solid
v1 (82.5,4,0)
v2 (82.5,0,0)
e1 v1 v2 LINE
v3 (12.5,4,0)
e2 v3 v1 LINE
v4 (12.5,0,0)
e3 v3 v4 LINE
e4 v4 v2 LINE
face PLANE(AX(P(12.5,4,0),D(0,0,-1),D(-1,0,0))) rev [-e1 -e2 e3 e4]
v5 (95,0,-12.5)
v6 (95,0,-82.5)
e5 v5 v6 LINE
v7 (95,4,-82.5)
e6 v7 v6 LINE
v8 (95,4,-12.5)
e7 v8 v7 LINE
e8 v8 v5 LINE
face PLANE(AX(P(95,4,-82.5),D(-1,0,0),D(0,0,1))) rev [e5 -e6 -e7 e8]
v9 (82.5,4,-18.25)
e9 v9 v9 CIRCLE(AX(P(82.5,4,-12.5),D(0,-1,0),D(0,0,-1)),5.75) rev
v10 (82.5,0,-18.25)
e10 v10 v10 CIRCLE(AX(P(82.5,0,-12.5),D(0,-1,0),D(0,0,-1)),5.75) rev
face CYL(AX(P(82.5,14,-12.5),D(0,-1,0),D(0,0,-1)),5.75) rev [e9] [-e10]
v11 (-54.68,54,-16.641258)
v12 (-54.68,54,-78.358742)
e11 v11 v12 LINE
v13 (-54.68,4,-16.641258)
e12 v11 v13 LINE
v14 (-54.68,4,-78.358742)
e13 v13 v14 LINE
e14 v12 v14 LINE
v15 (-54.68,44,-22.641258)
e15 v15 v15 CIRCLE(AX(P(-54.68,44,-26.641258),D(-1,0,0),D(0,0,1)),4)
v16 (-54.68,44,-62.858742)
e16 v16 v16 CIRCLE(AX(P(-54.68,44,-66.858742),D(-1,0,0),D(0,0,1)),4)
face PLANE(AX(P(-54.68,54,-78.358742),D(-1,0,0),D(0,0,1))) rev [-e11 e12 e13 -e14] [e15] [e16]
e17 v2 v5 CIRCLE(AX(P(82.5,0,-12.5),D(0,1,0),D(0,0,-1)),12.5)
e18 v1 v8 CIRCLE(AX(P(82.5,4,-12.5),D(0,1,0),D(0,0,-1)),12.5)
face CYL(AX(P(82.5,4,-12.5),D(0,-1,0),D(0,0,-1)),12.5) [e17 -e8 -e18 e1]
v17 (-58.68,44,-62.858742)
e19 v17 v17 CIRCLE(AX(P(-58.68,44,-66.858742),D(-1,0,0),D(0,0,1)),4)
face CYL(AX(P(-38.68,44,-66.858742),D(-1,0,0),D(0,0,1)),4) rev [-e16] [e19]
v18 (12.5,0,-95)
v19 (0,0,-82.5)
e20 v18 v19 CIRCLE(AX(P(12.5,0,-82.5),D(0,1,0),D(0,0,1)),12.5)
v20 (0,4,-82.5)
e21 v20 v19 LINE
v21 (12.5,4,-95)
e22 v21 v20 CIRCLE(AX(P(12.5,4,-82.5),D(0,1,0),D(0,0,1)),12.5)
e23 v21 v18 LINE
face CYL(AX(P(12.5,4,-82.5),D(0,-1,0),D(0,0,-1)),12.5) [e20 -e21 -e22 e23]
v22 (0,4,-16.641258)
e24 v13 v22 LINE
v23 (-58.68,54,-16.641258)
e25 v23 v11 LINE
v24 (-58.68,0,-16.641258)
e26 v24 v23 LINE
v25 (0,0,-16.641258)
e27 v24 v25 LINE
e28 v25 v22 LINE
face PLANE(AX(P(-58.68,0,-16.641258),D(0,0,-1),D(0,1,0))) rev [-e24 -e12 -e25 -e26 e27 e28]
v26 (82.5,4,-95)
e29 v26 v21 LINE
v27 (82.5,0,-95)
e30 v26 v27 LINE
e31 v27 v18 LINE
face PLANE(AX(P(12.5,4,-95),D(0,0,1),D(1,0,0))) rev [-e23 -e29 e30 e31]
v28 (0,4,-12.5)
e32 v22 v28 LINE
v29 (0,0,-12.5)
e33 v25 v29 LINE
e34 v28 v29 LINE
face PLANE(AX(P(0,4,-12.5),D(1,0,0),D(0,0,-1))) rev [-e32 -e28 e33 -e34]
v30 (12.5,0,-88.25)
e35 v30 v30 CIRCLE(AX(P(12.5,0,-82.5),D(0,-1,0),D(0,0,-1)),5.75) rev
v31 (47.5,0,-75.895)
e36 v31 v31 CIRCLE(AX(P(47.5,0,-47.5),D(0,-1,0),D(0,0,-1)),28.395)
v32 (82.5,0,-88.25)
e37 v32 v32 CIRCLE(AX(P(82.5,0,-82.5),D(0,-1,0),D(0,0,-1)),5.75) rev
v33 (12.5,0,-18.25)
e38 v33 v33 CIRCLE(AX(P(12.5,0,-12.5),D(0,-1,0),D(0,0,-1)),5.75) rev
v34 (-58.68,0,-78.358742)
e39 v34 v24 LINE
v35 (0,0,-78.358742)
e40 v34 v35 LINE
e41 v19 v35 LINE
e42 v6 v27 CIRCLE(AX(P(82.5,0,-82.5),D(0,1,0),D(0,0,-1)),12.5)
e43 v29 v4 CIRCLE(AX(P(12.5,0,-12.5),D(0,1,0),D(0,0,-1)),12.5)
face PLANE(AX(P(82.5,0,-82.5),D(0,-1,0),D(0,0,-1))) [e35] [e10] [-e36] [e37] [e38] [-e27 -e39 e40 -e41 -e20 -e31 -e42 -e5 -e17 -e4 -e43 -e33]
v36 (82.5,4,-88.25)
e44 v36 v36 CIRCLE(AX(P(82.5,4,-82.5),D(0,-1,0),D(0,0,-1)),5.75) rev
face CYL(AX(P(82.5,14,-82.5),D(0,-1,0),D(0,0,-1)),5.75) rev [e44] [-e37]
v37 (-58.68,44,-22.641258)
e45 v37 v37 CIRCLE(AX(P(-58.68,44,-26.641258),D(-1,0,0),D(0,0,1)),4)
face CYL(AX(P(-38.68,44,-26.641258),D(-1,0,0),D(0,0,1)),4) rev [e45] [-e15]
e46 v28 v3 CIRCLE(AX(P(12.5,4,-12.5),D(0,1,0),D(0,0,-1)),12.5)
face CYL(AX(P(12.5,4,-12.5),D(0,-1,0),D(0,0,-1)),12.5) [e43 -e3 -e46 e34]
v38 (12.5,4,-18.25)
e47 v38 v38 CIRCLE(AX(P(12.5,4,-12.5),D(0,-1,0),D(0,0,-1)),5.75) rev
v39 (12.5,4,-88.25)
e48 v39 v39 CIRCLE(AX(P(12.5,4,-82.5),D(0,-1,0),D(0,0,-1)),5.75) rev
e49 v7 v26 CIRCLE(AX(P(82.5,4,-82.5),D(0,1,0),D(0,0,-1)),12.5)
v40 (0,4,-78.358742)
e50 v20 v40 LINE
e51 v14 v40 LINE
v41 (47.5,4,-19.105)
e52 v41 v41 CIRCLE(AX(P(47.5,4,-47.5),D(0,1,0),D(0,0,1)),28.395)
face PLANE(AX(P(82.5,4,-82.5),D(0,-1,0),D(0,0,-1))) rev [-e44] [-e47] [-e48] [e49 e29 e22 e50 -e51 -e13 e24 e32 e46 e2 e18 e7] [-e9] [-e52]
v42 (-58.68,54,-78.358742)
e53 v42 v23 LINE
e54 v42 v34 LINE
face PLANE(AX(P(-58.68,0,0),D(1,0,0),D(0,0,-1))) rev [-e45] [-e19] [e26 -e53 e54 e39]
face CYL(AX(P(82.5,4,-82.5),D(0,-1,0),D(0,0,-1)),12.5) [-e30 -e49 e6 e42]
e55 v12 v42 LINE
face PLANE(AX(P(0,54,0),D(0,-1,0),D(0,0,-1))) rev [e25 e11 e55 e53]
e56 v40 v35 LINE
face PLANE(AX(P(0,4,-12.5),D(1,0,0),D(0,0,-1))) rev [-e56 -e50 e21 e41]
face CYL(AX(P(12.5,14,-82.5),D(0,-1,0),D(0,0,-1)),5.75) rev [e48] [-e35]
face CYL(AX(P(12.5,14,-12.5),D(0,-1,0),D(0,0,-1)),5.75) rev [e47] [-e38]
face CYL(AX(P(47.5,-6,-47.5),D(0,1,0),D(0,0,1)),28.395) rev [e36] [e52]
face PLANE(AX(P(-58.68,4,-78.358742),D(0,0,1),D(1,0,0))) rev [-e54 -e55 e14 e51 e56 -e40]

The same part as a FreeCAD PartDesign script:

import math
import FreeCAD as App
import Part
import Sketcher

V = App.Vector


def add_polygon(sketch, points):
    """Adds a closed chain of lines whose ends are joined by coincident constraints."""
    first, n = sketch.GeometryCount, len(points)
    for a, b in zip(points, points[1:] + points[:1]):
        sketch.addGeometry(Part.LineSegment(App.Vector(*a, 0), App.Vector(*b, 0)), False)
    for i in range(n):
        sketch.addConstraint(Sketcher.Constraint("Coincident", first + i, 2, first + (i + 1) % n, 1))

doc = App.newDocument("Part")
params = doc.addObject("Spreadsheet::Sheet", "Params")
for row, (alias, value) in enumerate([
    ("sketch1_radius", "12.5 mm"),
    ("sketch1_width", "70 mm"),
    ("pad1_length", "4 mm"),
    ("sketch2_diameter", "11.5 mm"),
    ("sketch3_width", "4 mm"),
    ("pad2_length", "58.68 mm"),
    ("sketch4_width", "4 mm"),
    ("pad3_length", "50 mm"),
    ("sketch5_diameter", "8 mm"),
    ("pocket2_length", "20 mm"),
    ("sketch6_diameter", "56.79 mm"),
    ("pocket3_length", "10 mm"),
], start=1):
    params.set(f"A{row}", alias)
    params.set(f"B{row}", "=" + value)
    params.setAlias(f"B{row}", alias)

body = doc.addObject("PartDesign::Body", "Body")

# Sketch on XZ plane
sketch1 = body.newObject("Sketcher::SketchObject", "Sketch")
sketch1.AttachmentSupport = (doc.getObject("XZ_Plane"), [""])
sketch1.MapMode = "FlatFace"
sketch1.addGeometry(Part.LineSegment(V(12, 0, 0), V(82, 0, 0)), False)
sketch1.addGeometry(Part.ArcOfCircle(Part.Circle(V(83, -12, 0), V(0, 0, 1), 12), math.radians(0), math.radians(90)), False)
sketch1.addGeometry(Part.LineSegment(V(95, -12, 0), V(95, -82, 0)), False)
sketch1.addGeometry(Part.ArcOfCircle(Part.Circle(V(83, -83, 0), V(0, 0, 1), 12), math.radians(-90), math.radians(0)), False)
sketch1.addGeometry(Part.LineSegment(V(82, -95, 0), V(12, -95, 0)), False)
sketch1.addGeometry(Part.ArcOfCircle(Part.Circle(V(12, -83, 0), V(0, 0, 1), 12), math.radians(180), math.radians(270)), False)
sketch1.addGeometry(Part.LineSegment(V(0, -82, 0), V(0, -12, 0)), False)
sketch1.addGeometry(Part.ArcOfCircle(Part.Circle(V(12, -12, 0), V(0, 0, 1), 12), math.radians(90), math.radians(180)), False)
sketch1.addConstraint(Sketcher.Constraint("Tangent", 0, 2, 1, 2))
sketch1.addConstraint(Sketcher.Constraint("Tangent", 1, 1, 2, 1))
sketch1.addConstraint(Sketcher.Constraint("Tangent", 2, 2, 3, 2))
sketch1.addConstraint(Sketcher.Constraint("Tangent", 3, 1, 4, 1))
sketch1.addConstraint(Sketcher.Constraint("Tangent", 4, 2, 5, 2))
sketch1.addConstraint(Sketcher.Constraint("Tangent", 5, 1, 6, 1))
sketch1.addConstraint(Sketcher.Constraint("Tangent", 6, 2, 7, 2))
sketch1.addConstraint(Sketcher.Constraint("Tangent", 7, 1, 0, 1))
sketch1.addConstraint(Sketcher.Constraint("Horizontal", 0))
sketch1.addConstraint(Sketcher.Constraint("Vertical", 2))
sketch1.addConstraint(Sketcher.Constraint("Horizontal", 4))
sketch1.addConstraint(Sketcher.Constraint("Vertical", 6))
sketch1.addConstraint(Sketcher.Constraint("Equal", 1, 3))
sketch1.addConstraint(Sketcher.Constraint("Equal", 3, 5))
sketch1.addConstraint(Sketcher.Constraint("Equal", 5, 7))
sketch1.addConstraint(Sketcher.Constraint("PointOnObject", 0, 2, -1))
sketch1.addConstraint(Sketcher.Constraint("PointOnObject", 5, 1, -2))
sketch1.addConstraint(Sketcher.Constraint("Equal", 4, 2))
sketch1.addConstraint(Sketcher.Constraint("Radius", 1, 12.5))
sketch1.addConstraint(Sketcher.Constraint("DistanceX", 0, 1, 0, 2, 70.0))
sketch1.setExpression("Constraints[18]", "Params.sketch1_radius")
sketch1.setExpression("Constraints[19]", "Params.sketch1_width")
pad1 = body.newObject("PartDesign::Pad", "Pad")
pad1.Profile = sketch1
pad1.setExpression("Length", "Params.pad1_length")
pad1.Reversed = True

# Sketch on XZ plane
sketch2 = body.newObject("Sketcher::SketchObject", "Sketch001")
sketch2.AttachmentSupport = (doc.getObject("XZ_Plane"), [""])
sketch2.MapMode = "FlatFace"
sketch2.AttachmentOffset = App.Placement(V(0, 0, -4), App.Rotation())
sketch2.addGeometry(Part.Circle(V(12, -82, 0), V(0, 0, 1), 6), False)
sketch2.addGeometry(Part.Circle(V(82, -82, 0), V(0, 0, 1), 6), False)
sketch2.addGeometry(Part.Circle(V(12, -12, 0), V(0, 0, 1), 6), False)
sketch2.addGeometry(Part.Circle(V(82, -12, 0), V(0, 0, 1), 6), False)
sketch2.addConstraint(Sketcher.Constraint("Equal", 0, 1))
sketch2.addConstraint(Sketcher.Constraint("Equal", 1, 2))
sketch2.addConstraint(Sketcher.Constraint("Equal", 2, 3))
sketch2.addConstraint(Sketcher.Constraint("Horizontal", 0, 3, 1, 3))
sketch2.addConstraint(Sketcher.Constraint("Horizontal", 2, 3, 3, 3))
sketch2.addConstraint(Sketcher.Constraint("Vertical", 0, 3, 2, 3))
sketch2.addConstraint(Sketcher.Constraint("Vertical", 1, 3, 3, 3))
sketch2.addConstraint(Sketcher.Constraint("Diameter", 0, 11.5))
sketch2.addConstraint(Sketcher.Constraint("DistanceX", 0, 3, 1, 3, 70.0))
sketch2.addConstraint(Sketcher.Constraint("DistanceY", 0, 3, 2, 3, 70.0))
sketch2.addConstraint(Sketcher.Constraint("DistanceX", -1, 1, 0, 3, 12.5))
sketch2.addConstraint(Sketcher.Constraint("DistanceY", 0, 3, -1, 1, 82.5))
sketch2.setExpression("Constraints[7]", "Params.sketch2_diameter")
pocket1 = body.newObject("PartDesign::Pocket", "Pocket")
pocket1.Profile = sketch2
pocket1.Type = "ThroughAll"
pocket1.Midplane = True

# Sketch on YZ plane
sketch3 = body.newObject("Sketcher::SketchObject", "Sketch002")
sketch3.AttachmentSupport = (doc.getObject("YZ_Plane"), [""])
sketch3.MapMode = "FlatFace"
add_polygon(sketch3, [(4, -16.6), (4, -78.4), (0, -78.4), (0, -16.6)])  # lines 0-3
sketch3.addConstraint(Sketcher.Constraint("Vertical", 0))
sketch3.addConstraint(Sketcher.Constraint("Horizontal", 1))
sketch3.addConstraint(Sketcher.Constraint("Vertical", 2))
sketch3.addConstraint(Sketcher.Constraint("Horizontal", 3))
sketch3.addConstraint(Sketcher.Constraint("PointOnObject", 1, 2, -2))
sketch3.addConstraint(Sketcher.Constraint("DistanceX", 1, 2, 1, 1, 4.0))
sketch3.addConstraint(Sketcher.Constraint("DistanceY", 0, 2, 0, 1, 61.717483))
sketch3.addConstraint(Sketcher.Constraint("DistanceY", 0, 2, -1, 1, 78.358742))
sketch3.setExpression("Constraints[9]", "Params.sketch3_width")
pad2 = body.newObject("PartDesign::Pad", "Pad001")
pad2.Profile = sketch3
pad2.setExpression("Length", "Params.pad2_length")
pad2.Reversed = True

# Sketch on XZ plane
sketch4 = body.newObject("Sketcher::SketchObject", "Sketch003")
sketch4.AttachmentSupport = (doc.getObject("XZ_Plane"), [""])
sketch4.MapMode = "FlatFace"
sketch4.AttachmentOffset = App.Placement(V(0, 0, -4), App.Rotation())
add_polygon(sketch4, [(-58.7, -78.4), (-58.7, -16.6), (-54.7, -16.6), (-54.7, -78.4)])  # lines 0-3
sketch4.addConstraint(Sketcher.Constraint("Vertical", 0))
sketch4.addConstraint(Sketcher.Constraint("Horizontal", 1))
sketch4.addConstraint(Sketcher.Constraint("Vertical", 2))
sketch4.addConstraint(Sketcher.Constraint("Horizontal", 3))
sketch4.addConstraint(Sketcher.Constraint("DistanceX", 1, 1, 1, 2, 4.0))
sketch4.addConstraint(Sketcher.Constraint("DistanceX", 0, 2, -1, 1, 58.68))
sketch4.addConstraint(Sketcher.Constraint("DistanceY", 0, 1, 0, 2, 61.717483))
sketch4.addConstraint(Sketcher.Constraint("DistanceY", 0, 2, -1, 1, 16.641258))
sketch4.setExpression("Constraints[8]", "Params.sketch4_width")
pad3 = body.newObject("PartDesign::Pad", "Pad002")
pad3.Profile = sketch4
pad3.setExpression("Length", "Params.pad3_length")
pad3.Reversed = True

# Sketch on YZ plane
sketch5 = body.newObject("Sketcher::SketchObject", "Sketch004")
sketch5.AttachmentSupport = (doc.getObject("YZ_Plane"), [""])
sketch5.MapMode = "FlatFace"
sketch5.AttachmentOffset = App.Placement(V(0, 0, -58.68), App.Rotation())
sketch5.addGeometry(Part.Circle(V(44, -66.9, 0), V(0, 0, 1), 4), False)
sketch5.addGeometry(Part.Circle(V(44, -26.6, 0), V(0, 0, 1), 4), False)
sketch5.addConstraint(Sketcher.Constraint("Equal", 0, 1))
sketch5.addConstraint(Sketcher.Constraint("Vertical", 0, 3, 1, 3))
sketch5.addConstraint(Sketcher.Constraint("Diameter", 0, 8.0))
sketch5.addConstraint(Sketcher.Constraint("DistanceX", -1, 1, 0, 3, 44.0))
sketch5.addConstraint(Sketcher.Constraint("DistanceY", 0, 3, -1, 1, 66.858742))
sketch5.addConstraint(Sketcher.Constraint("DistanceY", 1, 3, -1, 1, 26.641258))
sketch5.setExpression("Constraints[2]", "Params.sketch5_diameter")
pocket2 = body.newObject("PartDesign::Pocket", "Pocket001")
pocket2.Profile = sketch5
pocket2.setExpression("Length", "Params.pocket2_length")
pocket2.Reversed = True

# Sketch on XZ plane
sketch6 = body.newObject("Sketcher::SketchObject", "Sketch005")
sketch6.AttachmentSupport = (doc.getObject("XZ_Plane"), [""])
sketch6.MapMode = "FlatFace"
sketch6.AttachmentOffset = App.Placement(V(0, 0, -4), App.Rotation())
sketch6.addGeometry(Part.Circle(V(48, -48, 0), V(0, 0, 1), 28), False)
sketch6.addConstraint(Sketcher.Constraint("Diameter", 0, 56.79))
sketch6.addConstraint(Sketcher.Constraint("DistanceX", -1, 1, 0, 3, 47.5))
sketch6.addConstraint(Sketcher.Constraint("DistanceY", 0, 3, -1, 1, 47.5))
sketch6.setExpression("Constraints[0]", "Params.sketch6_diameter")
pocket3 = body.newObject("PartDesign::Pocket", "Pocket002")
pocket3.Profile = sketch6
pocket3.setExpression("Length", "Params.pocket3_length")
pocket3.Reversed = True

doc.recompute()
